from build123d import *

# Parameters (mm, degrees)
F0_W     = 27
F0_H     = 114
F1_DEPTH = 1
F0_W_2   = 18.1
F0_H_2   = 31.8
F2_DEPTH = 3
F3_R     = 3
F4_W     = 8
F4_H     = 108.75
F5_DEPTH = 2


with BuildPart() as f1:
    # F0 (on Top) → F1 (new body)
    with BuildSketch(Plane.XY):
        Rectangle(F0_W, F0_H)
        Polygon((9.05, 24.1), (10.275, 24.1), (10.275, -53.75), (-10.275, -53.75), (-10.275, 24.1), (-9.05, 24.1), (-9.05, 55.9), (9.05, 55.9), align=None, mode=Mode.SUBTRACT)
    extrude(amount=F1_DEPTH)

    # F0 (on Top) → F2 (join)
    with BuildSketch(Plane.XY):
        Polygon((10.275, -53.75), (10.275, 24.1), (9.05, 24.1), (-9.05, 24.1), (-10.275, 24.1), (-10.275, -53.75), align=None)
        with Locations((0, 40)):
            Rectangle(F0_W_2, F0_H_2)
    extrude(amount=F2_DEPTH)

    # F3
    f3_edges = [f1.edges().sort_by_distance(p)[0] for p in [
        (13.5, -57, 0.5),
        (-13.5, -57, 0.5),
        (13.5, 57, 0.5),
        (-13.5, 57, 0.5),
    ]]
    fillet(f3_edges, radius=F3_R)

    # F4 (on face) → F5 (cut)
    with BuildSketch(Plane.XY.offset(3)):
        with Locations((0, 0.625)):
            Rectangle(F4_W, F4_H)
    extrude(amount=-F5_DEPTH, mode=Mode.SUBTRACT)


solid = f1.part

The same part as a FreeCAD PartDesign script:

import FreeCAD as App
import Part
import Sketcher
from FreeCAD import Vector


def edges_at(feature, points):
    """Names of the edges that pass closest to the given points."""
    edges = feature.Shape.Edges
    near = lambda p: min(range(len(edges)), key=lambda i: edges[i].distToShape(Part.Vertex(*p))[0])
    return sorted({f"Edge{near(p) + 1}" for p in points})

doc = App.newDocument("Part")
body = doc.addObject("PartDesign::Body", "Body")

# Sketch on XY plane
sketch1 = body.newObject("Sketcher::SketchObject", "Sketch")
sketch1.AttachmentSupport = (doc.getObject("XY_Plane"), [""])
sketch1.MapMode = "FlatFace"
sketch1.addGeometry([
    Part.LineSegment(Vector(-13.5, 57, 0), Vector(-13.5, -57, 0)),  # 0
    Part.LineSegment(Vector(-13.5, -57, 0), Vector(13.5, -57, 0)),  # 1
    Part.LineSegment(Vector(13.5, -57, 0), Vector(13.5, 57, 0)),  # 2
    Part.LineSegment(Vector(13.5, 57, 0), Vector(-13.5, 57, 0)),  # 3
    Part.LineSegment(Vector(9.1, 55.9, 0), Vector(9.1, 24.1, 0)),  # 4
    Part.LineSegment(Vector(9.1, 24.1, 0), Vector(10.3, 24.1, 0)),  # 5
    Part.LineSegment(Vector(10.3, 24.1, 0), Vector(10.3, -53.8, 0)),  # 6
    Part.LineSegment(Vector(10.3, -53.8, 0), Vector(-10.3, -53.8, 0)),  # 7
    Part.LineSegment(Vector(-10.3, -53.8, 0), Vector(-10.3, 24.1, 0)),  # 8
    Part.LineSegment(Vector(-10.3, 24.1, 0), Vector(-9.1, 24.1, 0)),  # 9
    Part.LineSegment(Vector(-9.1, 24.1, 0), Vector(-9.1, 55.9, 0)),  # 10
    Part.LineSegment(Vector(-9.1, 55.9, 0), Vector(9.1, 55.9, 0)),  # 11
], False)
sketch1.addConstraint([
    Sketcher.Constraint("Coincident", 0, 2, 1, 1),
    Sketcher.Constraint("Coincident", 1, 2, 2, 1),
    Sketcher.Constraint("Coincident", 2, 2, 3, 1),
    Sketcher.Constraint("Coincident", 3, 2, 0, 1),
    Sketcher.Constraint("Coincident", 4, 2, 5, 1),
    Sketcher.Constraint("Coincident", 5, 2, 6, 1),
    Sketcher.Constraint("Coincident", 6, 2, 7, 1),
    Sketcher.Constraint("Coincident", 7, 2, 8, 1),
    Sketcher.Constraint("Coincident", 8, 2, 9, 1),
    Sketcher.Constraint("Coincident", 9, 2, 10, 1),
    Sketcher.Constraint("Coincident", 10, 2, 11, 1),
    Sketcher.Constraint("Coincident", 11, 2, 4, 1),
    Sketcher.Constraint("Vertical", 0),
    Sketcher.Constraint("Horizontal", 1),
    Sketcher.Constraint("Vertical", 2),
    Sketcher.Constraint("Horizontal", 3),
    Sketcher.Constraint("Vertical", 4),
    Sketcher.Constraint("Horizontal", 5),
    Sketcher.Constraint("Vertical", 6),
    Sketcher.Constraint("Horizontal", 7),
    Sketcher.Constraint("Vertical", 8),
    Sketcher.Constraint("Horizontal", 9),
    Sketcher.Constraint("Vertical", 10),
    Sketcher.Constraint("Horizontal", 11),
    Sketcher.Constraint("Symmetric", 0, 2, 2, 2, -1, 1),
    Sketcher.Constraint("Symmetric", 5, 2, 8, 2, -2),
    Sketcher.Constraint("Equal", 5, 9),
    Sketcher.Constraint("DistanceX", 1, 1, 1, 2, 27.0),
    Sketcher.Constraint("DistanceY", 0, 2, 0, 1, 114.0),
    Sketcher.Constraint("DistanceX", 11, 1, 11, 2, 18.1),
    Sketcher.Constraint("DistanceY", 4, 2, 4, 1, 31.8),
    Sketcher.Constraint("DistanceX", 7, 2, 7, 1, 20.55),
    Sketcher.Constraint("DistanceY", 6, 2, 6, 1, 77.85),
    Sketcher.Constraint("DistanceY", -1, 1, 4, 2, 24.1),
])
pad1 = body.newObject("PartDesign::Pad", "Pad")
pad1.Profile = sketch1
pad1.Length = 1

# Sketch on XY plane
sketch2 = body.newObject("Sketcher::SketchObject", "Sketch001")
sketch2.AttachmentSupport = (doc.getObject("XY_Plane"), [""])
sketch2.MapMode = "FlatFace"
sketch2.addGeometry([
    Part.LineSegment(Vector(10.3, -53.8, 0), Vector(10.3, 24.1, 0)),  # 0
    Part.LineSegment(Vector(10.3, 24.1, 0), Vector(9.1, 24.1, 0)),  # 1
    Part.LineSegment(Vector(9.1, 24.1, 0), Vector(9.1, 55.9, 0)),  # 2
    Part.LineSegment(Vector(9.1, 55.9, 0), Vector(-9.1, 55.9, 0)),  # 3
    Part.LineSegment(Vector(-9.1, 55.9, 0), Vector(-9.1, 24.1, 0)),  # 4
    Part.LineSegment(Vector(-9.1, 24.1, 0), Vector(-10.3, 24.1, 0)),  # 5
    Part.LineSegment(Vector(-10.3, 24.1, 0), Vector(-10.3, -53.8, 0)),  # 6
    Part.LineSegment(Vector(-10.3, -53.8, 0), Vector(10.3, -53.8, 0)),  # 7
], False)
sketch2.addConstraint([
    Sketcher.Constraint("Coincident", 0, 2, 1, 1),
    Sketcher.Constraint("Coincident", 1, 2, 2, 1),
    Sketcher.Constraint("Coincident", 2, 2, 3, 1),
    Sketcher.Constraint("Coincident", 3, 2, 4, 1),
    Sketcher.Constraint("Coincident", 4, 2, 5, 1),
    Sketcher.Constraint("Coincident", 5, 2, 6, 1),
    Sketcher.Constraint("Coincident", 6, 2, 7, 1),
    Sketcher.Constraint("Coincident", 7, 2, 0, 1),
    Sketcher.Constraint("Vertical", 0),
    Sketcher.Constraint("Horizontal", 1),
    Sketcher.Constraint("Vertical", 2),
    Sketcher.Constraint("Horizontal", 3),
    Sketcher.Constraint("Vertical", 4),
    Sketcher.Constraint("Horizontal", 5),
    Sketcher.Constraint("Vertical", 6),
    Sketcher.Constraint("Horizontal", 7),
    Sketcher.Constraint("Symmetric", 1, 2, 4, 2, -2),
    Sketcher.Constraint("Equal", 1, 5),
    Sketcher.Constraint("DistanceX", 3, 2, 3, 1, 18.1),
    Sketcher.Constraint("DistanceY", 2, 1, 2, 2, 31.8),
    Sketcher.Constraint("DistanceX", 7, 1, 7, 2, 20.55),
    Sketcher.Constraint("DistanceY", 0, 1, 0, 2, 77.85),
    Sketcher.Constraint("DistanceY", -1, 1, 0, 2, 24.1),
])
pad2 = body.newObject("PartDesign::Pad", "Pad001")
pad2.Profile = sketch2
pad2.Length = 3
doc.recompute()

fillet = body.newObject("PartDesign::Fillet", "Fillet")
fillet.Base = (pad2, edges_at(pad2, [
    (13.5, -57, 0.5),
    (-13.5, -57, 0.5),
    (13.5, 57, 0.5),
    (-13.5, 57, 0.5),
]))
fillet.Radius = 3

# Sketch on XY plane
sketch3 = body.newObject("Sketcher::SketchObject", "Sketch002")
sketch3.AttachmentSupport = (doc.getObject("XY_Plane"), [""])
sketch3.MapMode = "FlatFace"
sketch3.AttachmentOffset = App.Placement(Vector(0, 0, 3), App.Rotation())
sketch3.addGeometry([
    Part.LineSegment(Vector(-4, 55, 0), Vector(-4, -54, 0)),
    Part.LineSegment(Vector(-4, -54, 0), Vector(4, -54, 0)),
    Part.LineSegment(Vector(4, -54, 0), Vector(4, 55, 0)),
    Part.LineSegment(Vector(4, 55, 0), Vector(-4, 55, 0)),
], False)
sketch3.addConstraint([
    Sketcher.Constraint("Coincident", 0, 2, 1, 1),
    Sketcher.Constraint("Coincident", 1, 2, 2, 1),
    Sketcher.Constraint("Coincident", 2, 2, 3, 1),
    Sketcher.Constraint("Coincident", 3, 2, 0, 1),
    Sketcher.Constraint("Vertical", 0),
    Sketcher.Constraint("Horizontal", 1),
    Sketcher.Constraint("Vertical", 2),
    Sketcher.Constraint("Horizontal", 3),
    Sketcher.Constraint("DistanceX", 1, 1, 1, 2, 8.0),
    Sketcher.Constraint("DistanceX", 0, 2, -1, 1, 4.0),
    Sketcher.Constraint("DistanceY", -1, 1, 2, 2, 55.0),
    Sketcher.Constraint("DistanceY", 0, 2, 0, 1, 108.75),
])
pocket1 = body.newObject("PartDesign::Pocket", "Pocket")
pocket1.Profile = sketch3
pocket1.Length = 2

doc.recompute()
